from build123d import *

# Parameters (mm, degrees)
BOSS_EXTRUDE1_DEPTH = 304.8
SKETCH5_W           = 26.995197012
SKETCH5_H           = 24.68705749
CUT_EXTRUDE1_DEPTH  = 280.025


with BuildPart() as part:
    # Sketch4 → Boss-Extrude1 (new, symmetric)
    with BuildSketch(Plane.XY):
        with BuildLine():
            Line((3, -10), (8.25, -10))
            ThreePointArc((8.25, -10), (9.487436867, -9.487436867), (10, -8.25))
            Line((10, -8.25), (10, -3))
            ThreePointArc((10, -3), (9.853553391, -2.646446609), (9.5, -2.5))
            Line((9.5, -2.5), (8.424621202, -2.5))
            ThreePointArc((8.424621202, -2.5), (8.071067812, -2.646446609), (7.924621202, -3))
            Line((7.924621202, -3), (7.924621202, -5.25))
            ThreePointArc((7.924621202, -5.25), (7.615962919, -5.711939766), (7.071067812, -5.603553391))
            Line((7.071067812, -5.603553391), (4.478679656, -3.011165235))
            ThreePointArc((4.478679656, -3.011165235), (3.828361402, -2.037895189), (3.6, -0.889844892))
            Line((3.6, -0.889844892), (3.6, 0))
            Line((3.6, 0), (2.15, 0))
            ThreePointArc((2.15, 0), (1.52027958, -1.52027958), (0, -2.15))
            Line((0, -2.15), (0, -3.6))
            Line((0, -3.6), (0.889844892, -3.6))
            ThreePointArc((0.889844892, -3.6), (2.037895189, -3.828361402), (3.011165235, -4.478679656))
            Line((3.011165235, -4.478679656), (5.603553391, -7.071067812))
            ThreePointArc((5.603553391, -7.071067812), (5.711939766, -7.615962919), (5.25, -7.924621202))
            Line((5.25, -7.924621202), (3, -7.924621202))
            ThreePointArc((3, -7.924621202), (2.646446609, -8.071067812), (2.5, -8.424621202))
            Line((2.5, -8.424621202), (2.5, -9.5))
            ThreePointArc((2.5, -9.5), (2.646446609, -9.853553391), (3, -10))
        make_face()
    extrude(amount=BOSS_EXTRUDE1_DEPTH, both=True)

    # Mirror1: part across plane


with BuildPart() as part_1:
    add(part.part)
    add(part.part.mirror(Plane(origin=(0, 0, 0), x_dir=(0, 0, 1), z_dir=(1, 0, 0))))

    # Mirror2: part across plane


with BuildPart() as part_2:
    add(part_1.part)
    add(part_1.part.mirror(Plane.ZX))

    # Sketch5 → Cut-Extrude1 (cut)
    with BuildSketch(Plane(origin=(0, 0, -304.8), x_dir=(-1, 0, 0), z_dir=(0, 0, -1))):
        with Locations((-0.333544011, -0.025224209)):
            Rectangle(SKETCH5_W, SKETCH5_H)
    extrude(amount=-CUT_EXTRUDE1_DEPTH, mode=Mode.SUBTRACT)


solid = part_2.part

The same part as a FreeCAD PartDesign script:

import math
import FreeCAD as App
import Part
import Sketcher

doc = App.newDocument("Part")
body = doc.addObject("PartDesign::Body", "Body")

# Sketch on XY plane
sketch1 = body.newObject("Sketcher::SketchObject", "Sketch")
sketch1.AttachmentSupport = (doc.getObject("XY_Plane"), [""])
sketch1.MapMode = "FlatFace"
sketch1.addGeometry([
    Part.LineSegment(App.Vector(3, -10, 0), App.Vector(8.25, -10, 0)),  # 0
    Part.ArcOfCircle(Part.Circle(App.Vector(8.25, -8.25, 0), App.Vector(0, 0, 1), 1.75), math.radians(-90), math.radians(0)),  # 1
    Part.LineSegment(App.Vector(10, -8.25, 0), App.Vector(10, -3, 0)),  # 2
    Part.ArcOfCircle(Part.Circle(App.Vector(9.5, -3, 0), App.Vector(0, 0, 1), 0.5), math.radians(0), math.radians(90)),  # 3
    Part.LineSegment(App.Vector(9.5, -2.5, 0), App.Vector(8.42, -2.5, 0)),  # 4
    Part.ArcOfCircle(Part.Circle(App.Vector(8.42, -3, 0), App.Vector(0, 0, 1), 0.5), math.radians(90), math.radians(180)),  # 5
    Part.LineSegment(App.Vector(7.92, -3, 0), App.Vector(7.92, -5.25, 0)),  # 6
    Part.ArcOfCircle(Part.Circle(App.Vector(7.42, -5.25, 0), App.Vector(0, 0, 1), 0.5), math.radians(-135), math.radians(0)),  # 7
    Part.LineSegment(App.Vector(7.07, -5.6, 0), App.Vector(4.48, -3.01, 0)),  # 8
    Part.ArcOfCircle(Part.Circle(App.Vector(6.6, -0.89, 0), App.Vector(0, 0, 1), 3), math.radians(180), math.radians(225)),  # 9
    Part.LineSegment(App.Vector(3.6, -0.89, 0), App.Vector(3.6, 0, 0)),  # 10
    Part.LineSegment(App.Vector(3.6, 0, 0), App.Vector(2.15, 0, 0)),  # 11
    Part.ArcOfCircle(Part.Circle(App.Vector(0, 0, 0), App.Vector(0, 0, 1), 2.15), math.radians(-90), math.radians(0)),  # 12
    Part.LineSegment(App.Vector(0, -2.15, 0), App.Vector(0, -3.6, 0)),  # 13
    Part.LineSegment(App.Vector(0, -3.6, 0), App.Vector(0.89, -3.6, 0)),  # 14
    Part.ArcOfCircle(Part.Circle(App.Vector(0.89, -6.6, 0), App.Vector(0, 0, 1), 3), math.radians(45), math.radians(90)),  # 15
    Part.LineSegment(App.Vector(3.01, -4.48, 0), App.Vector(5.6, -7.07, 0)),  # 16
    Part.ArcOfCircle(Part.Circle(App.Vector(5.25, -7.42, 0), App.Vector(0, 0, 1), 0.5), math.radians(-90), math.radians(45)),  # 17
    Part.LineSegment(App.Vector(5.25, -7.92, 0), App.Vector(3, -7.92, 0)),  # 18
    Part.ArcOfCircle(Part.Circle(App.Vector(3, -8.42, 0), App.Vector(0, 0, 1), 0.5), math.radians(90), math.radians(180)),  # 19
    Part.LineSegment(App.Vector(2.5, -8.42, 0), App.Vector(2.5, -9.5, 0)),  # 20
    Part.ArcOfCircle(Part.Circle(App.Vector(3, -9.5, 0), App.Vector(0, 0, 1), 0.5), math.radians(180), math.radians(270)),  # 21
], False)
sketch1.addConstraint([
    Sketcher.Constraint("Tangent", 0, 2, 1, 1),
    Sketcher.Constraint("Tangent", 1, 2, 2, 1),
    Sketcher.Constraint("Tangent", 2, 2, 3, 1),
    Sketcher.Constraint("Tangent", 3, 2, 4, 1),
    Sketcher.Constraint("Tangent", 4, 2, 5, 1),
    Sketcher.Constraint("Tangent", 5, 2, 6, 1),
    Sketcher.Constraint("Tangent", 6, 2, 7, 2),
    Sketcher.Constraint("Tangent", 7, 1, 8, 1),
    Sketcher.Constraint("Tangent", 8, 2, 9, 2),
    Sketcher.Constraint("Tangent", 9, 1, 10, 1),
    Sketcher.Constraint("Coincident", 10, 2, 11, 1),
    Sketcher.Constraint("Coincident", 11, 2, 12, 2),
    Sketcher.Constraint("Coincident", 12, 1, 13, 1),
    Sketcher.Constraint("Coincident", 13, 2, 14, 1),
    Sketcher.Constraint("Tangent", 14, 2, 15, 2),
    Sketcher.Constraint("Tangent", 15, 1, 16, 1),
    Sketcher.Constraint("Tangent", 16, 2, 17, 2),
    Sketcher.Constraint("Tangent", 17, 1, 18, 1),
    Sketcher.Constraint("Tangent", 18, 2, 19, 1),
    Sketcher.Constraint("Tangent", 19, 2, 20, 1),
    Sketcher.Constraint("Tangent", 20, 2, 21, 1),
    Sketcher.Constraint("Tangent", 21, 2, 0, 1),
    Sketcher.Constraint("Horizontal", 0),
    Sketcher.Constraint("Vertical", 2),
    Sketcher.Constraint("Horizontal", 4),
    Sketcher.Constraint("Vertical", 6),
    Sketcher.Constraint("Vertical", 10),
    Sketcher.Constraint("Horizontal", 11),
    Sketcher.Constraint("Vertical", 13),
    Sketcher.Constraint("Horizontal", 14),
    Sketcher.Constraint("Horizontal", 18),
    Sketcher.Constraint("Vertical", 20),
    Sketcher.Constraint("Coincident", 12, 3, -1, 1),
    Sketcher.Constraint("Equal", 3, 5),
    Sketcher.Constraint("Equal", 5, 7),
    Sketcher.Constraint("Equal", 9, 15),
    Sketcher.Constraint("Equal", 7, 17),
    Sketcher.Constraint("Equal", 17, 19),
    Sketcher.Constraint("Equal", 19, 21),
    Sketcher.Constraint("PointOnObject", 10, 2, -1),
    Sketcher.Constraint("PointOnObject", 12, 1, -2),
    Sketcher.Constraint("Parallel", 8, 16),
    Sketcher.Constraint("Equal", 0, 2),
    Sketcher.Constraint("Equal", 18, 6),
    Sketcher.Constraint("Equal", 14, 10),
    Sketcher.Constraint("Equal", 11, 13),
    Sketcher.Constraint("Equal", 4, 20),
    Sketcher.Constraint("Equal", 8, 16),
    Sketcher.Constraint("Radius", 9, 3.0),
    Sketcher.Constraint("Radius", 3, 0.5),
    Sketcher.Constraint("Radius", 1, 1.75),
    Sketcher.Constraint("Radius", 12, 2.15),
    Sketcher.Constraint("DistanceY", 3, 3, -1, 1, 3.0),
    Sketcher.Constraint("DistanceY", 0, 2, -1, 1, 10.0),
    Sketcher.Constraint("DistanceY", 1, 3, 7, 3, 3.0),
    Sketcher.Constraint("DistanceX", 11, 2, 11, 1, 1.45),
    Sketcher.Constraint("DistanceX", 4, 2, 4, 1, 1.075379),
])
pad1 = body.newObject("PartDesign::Pad", "Pad")
pad1.Profile = sketch1
pad1.Length = 609.6
pad1.Midplane = True
body2 = doc.addObject("PartDesign::Body", "Body001")
doc.recompute()

body2.BaseFeature = body
doc.recompute()

mirroring = doc.addObject("Part::Mirroring", "Mirroring")
mirroring.Source = body
mirroring.Base = App.Vector(0, 0, 0)
mirroring.Normal = App.Vector(1, 0, 0)
body3 = doc.addObject("PartDesign::Body", "Body002")
body3.BaseFeature = mirroring
boolean = body2.newObject("PartDesign::Boolean", "Boolean")
boolean.Type = "Fuse"
boolean.addObjects([body3])
doc.recompute()
body4 = doc.addObject("PartDesign::Body", "Body003")
doc.recompute()

body4.BaseFeature = body2
doc.recompute()

mirroring2 = doc.addObject("Part::Mirroring", "Mirroring001")
mirroring2.Source = body2
mirroring2.Base = App.Vector(0, 0, 0)
mirroring2.Normal = App.Vector(0, 1, 0)
body5 = doc.addObject("PartDesign::Body", "Body004")
body5.BaseFeature = mirroring2
boolean2 = body4.newObject("PartDesign::Boolean", "Boolean001")
boolean2.Type = "Fuse"
boolean2.addObjects([body5])
doc.recompute()

# Sketch on XY plane
sketch2 = body4.newObject("Sketcher::SketchObject", "Sketch001")
sketch2.AttachmentSupport = (doc.getObject("XY_Plane003"), [""])
sketch2.MapMode = "FlatFace"
sketch2.AttachmentOffset = App.Placement(App.Vector(0, 0, -304.8), App.Rotation())
sketch2.addGeometry([
    Part.LineSegment(App.Vector(14, 12, 0), App.Vector(14, -12, 0)),
    Part.LineSegment(App.Vector(14, -12, 0), App.Vector(-13, -12, 0)),
    Part.LineSegment(App.Vector(-13, -12, 0), App.Vector(-13, 12, 0)),
    Part.LineSegment(App.Vector(-13, 12, 0), App.Vector(14, 12, 0)),
], False)
sketch2.addConstraint([
    Sketcher.Constraint("Coincident", 0, 2, 1, 1),
    Sketcher.Constraint("Coincident", 1, 2, 2, 1),
    Sketcher.Constraint("Coincident", 2, 2, 3, 1),
    Sketcher.Constraint("Coincident", 3, 2, 0, 1),
    Sketcher.Constraint("Vertical", 0),
    Sketcher.Constraint("Horizontal", 1),
    Sketcher.Constraint("Vertical", 2),
    Sketcher.Constraint("Horizontal", 3),
    Sketcher.Constraint("DistanceX", 1, 2, 1, 1, 26.995197),
    Sketcher.Constraint("DistanceY", 0, 2, 0, 1, 24.687057),
    Sketcher.Constraint("DistanceX", -1, 1, 0, 2, 13.831143),
    Sketcher.Constraint("DistanceY", 0, 2, -1, 1, 12.368753),
])
pocket1 = body4.newObject("PartDesign::Pocket", "Pocket")
pocket1.Profile = sketch2
pocket1.Length = 280.025
pocket1.Reversed = True
mirroring.Visibility = False
mirroring2.Visibility = False

doc.recompute()
